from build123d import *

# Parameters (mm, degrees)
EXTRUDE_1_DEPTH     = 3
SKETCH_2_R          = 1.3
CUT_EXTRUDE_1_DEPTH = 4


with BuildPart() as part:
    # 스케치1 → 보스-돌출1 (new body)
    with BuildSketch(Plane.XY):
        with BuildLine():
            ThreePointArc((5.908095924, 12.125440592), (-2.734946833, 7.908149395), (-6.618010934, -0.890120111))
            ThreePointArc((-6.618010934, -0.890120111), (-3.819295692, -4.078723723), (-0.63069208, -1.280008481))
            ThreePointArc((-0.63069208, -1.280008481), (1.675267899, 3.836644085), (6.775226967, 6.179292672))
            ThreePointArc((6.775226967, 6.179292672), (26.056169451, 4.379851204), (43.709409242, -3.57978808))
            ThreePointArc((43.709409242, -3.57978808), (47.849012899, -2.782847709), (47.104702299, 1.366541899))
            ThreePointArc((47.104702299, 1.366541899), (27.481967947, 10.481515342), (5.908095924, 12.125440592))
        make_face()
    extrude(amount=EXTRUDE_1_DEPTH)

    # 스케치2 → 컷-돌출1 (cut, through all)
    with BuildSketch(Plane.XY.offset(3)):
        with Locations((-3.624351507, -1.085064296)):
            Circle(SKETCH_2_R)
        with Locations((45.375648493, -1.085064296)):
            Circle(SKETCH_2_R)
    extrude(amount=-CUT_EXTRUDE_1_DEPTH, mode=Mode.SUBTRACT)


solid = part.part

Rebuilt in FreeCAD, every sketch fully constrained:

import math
import FreeCAD as App
import Part
import Sketcher

V = App.Vector

doc = App.newDocument("Part")
params = doc.addObject("Spreadsheet::Sheet", "Params")
for row, (alias, value) in enumerate([
    ("sketch1_radius", "14 mm"),
    ("sketch1_radius2", "3 mm"),
    ("pad1_length", "3 mm"),
    ("sketch2_diameter", "2.6 mm"),
], start=1):
    params.set(f"A{row}", alias)
    params.set(f"B{row}", "=" + value)
    params.setAlias(f"B{row}", alias)

body = doc.addObject("PartDesign::Body", "Body")

# Sketch on XY plane
sketch1 = body.newObject("Sketcher::SketchObject", "Sketch")
sketch1.AttachmentSupport = (doc.getObject("XY_Plane"), [""])
sketch1.MapMode = "FlatFace"
sketch1.addGeometry(Part.ArcOfCircle(Part.Circle(V(7.4, -1.8, 0), V(0, 0, 1), 14), math.radians(96), math.radians(176)), False)
sketch1.addGeometry(Part.ArcOfCircle(Part.Circle(V(-3.6, -1.1, 0), V(0, 0, 1), 3), math.radians(176), math.radians(356)), False)
sketch1.addGeometry(Part.ArcOfCircle(Part.Circle(V(7.4, -1.8, 0), V(0, 0, 1), 8), math.radians(94), math.radians(176)), False)
sketch1.addGeometry(Part.ArcOfCircle(Part.Circle(V(11, -52.5, 0), V(0, 0, 1), 58.9), math.radians(56), math.radians(94)), False)
sketch1.addGeometry(Part.ArcOfCircle(Part.Circle(V(45.4, -1.1, 0), V(0, 0, 1), 3), math.radians(-124), math.radians(55)), False)
sketch1.addGeometry(Part.ArcOfCircle(Part.Circle(V(12.2, -48.2, 0), V(0, 0, 1), 60.6), math.radians(55), math.radians(96)), False)
sketch1.addConstraint(Sketcher.Constraint("Tangent", 0, 2, 1, 1))
sketch1.addConstraint(Sketcher.Constraint("Tangent", 1, 2, 2, 2))
sketch1.addConstraint(Sketcher.Constraint("Tangent", 2, 1, 3, 2))
sketch1.addConstraint(Sketcher.Constraint("Tangent", 3, 1, 4, 1))
sketch1.addConstraint(Sketcher.Constraint("Tangent", 4, 2, 5, 1))
sketch1.addConstraint(Sketcher.Constraint("Tangent", 5, 2, 0, 1))
sketch1.addConstraint(Sketcher.Constraint("Coincident", 2, 3, 0, 3))
sketch1.addConstraint(Sketcher.Constraint("Equal", 1, 4))
sketch1.addConstraint(Sketcher.Constraint("Horizontal", 1, 3, 4, 3))
sketch1.addConstraint(Sketcher.Constraint("Radius", 0, 14.0))
sketch1.addConstraint(Sketcher.Constraint("Radius", 1, 3.0))
sketch1.addConstraint(Sketcher.Constraint("DistanceX", 1, 3, 4, 3, 49.0))
sketch1.addConstraint(Sketcher.Constraint("Radius", 5, 60.626412))
sketch1.addConstraint(Sketcher.Constraint("Radius", 3, 58.853657))
sketch1.addConstraint(Sketcher.Constraint("DistanceX", -1, 1, 0, 3, 7.3524))
sketch1.addConstraint(Sketcher.Constraint("DistanceY", 1, 2, 2, 1, 7.459301))
sketch1.addConstraint(Sketcher.Constraint("DistanceY", 0, 3, -1, 1, 1.79986))
sketch1.setExpression("Constraints[9]", "Params.sketch1_radius")
sketch1.setExpression("Constraints[10]", "Params.sketch1_radius2")
pad1 = body.newObject("PartDesign::Pad", "Pad")
pad1.Profile = sketch1
pad1.setExpression("Length", "Params.pad1_length")

# Sketch on XY plane
sketch2 = body.newObject("Sketcher::SketchObject", "Sketch001")
sketch2.AttachmentSupport = (doc.getObject("XY_Plane"), [""])
sketch2.MapMode = "FlatFace"
sketch2.AttachmentOffset = App.Placement(V(0, 0, 3), App.Rotation())
sketch2.addGeometry(Part.Circle(V(-3.6, -1.1, 0), V(0, 0, 1), 1.3), False)
sketch2.addGeometry(Part.Circle(V(45.4, -1.1, 0), V(0, 0, 1), 1.3), False)
sketch2.addConstraint(Sketcher.Constraint("Equal", 0, 1))
sketch2.addConstraint(Sketcher.Constraint("Horizontal", 0, 3, 1, 3))
sketch2.addConstraint(Sketcher.Constraint("Diameter", 0, 2.6))
sketch2.addConstraint(Sketcher.Constraint("DistanceX", 0, 3, 1, 3, 49.0))
sketch2.addConstraint(Sketcher.Constraint("DistanceX", 0, 3, -1, 1, 3.624352))
sketch2.addConstraint(Sketcher.Constraint("DistanceY", 0, 3, -1, 1, 1.085064))
sketch2.setExpression("Constraints[2]", "Params.sketch2_diameter")
pocket1 = body.newObject("PartDesign::Pocket", "Pocket")
pocket1.Profile = sketch2
pocket1.Type = "ThroughAll"

doc.recompute()
